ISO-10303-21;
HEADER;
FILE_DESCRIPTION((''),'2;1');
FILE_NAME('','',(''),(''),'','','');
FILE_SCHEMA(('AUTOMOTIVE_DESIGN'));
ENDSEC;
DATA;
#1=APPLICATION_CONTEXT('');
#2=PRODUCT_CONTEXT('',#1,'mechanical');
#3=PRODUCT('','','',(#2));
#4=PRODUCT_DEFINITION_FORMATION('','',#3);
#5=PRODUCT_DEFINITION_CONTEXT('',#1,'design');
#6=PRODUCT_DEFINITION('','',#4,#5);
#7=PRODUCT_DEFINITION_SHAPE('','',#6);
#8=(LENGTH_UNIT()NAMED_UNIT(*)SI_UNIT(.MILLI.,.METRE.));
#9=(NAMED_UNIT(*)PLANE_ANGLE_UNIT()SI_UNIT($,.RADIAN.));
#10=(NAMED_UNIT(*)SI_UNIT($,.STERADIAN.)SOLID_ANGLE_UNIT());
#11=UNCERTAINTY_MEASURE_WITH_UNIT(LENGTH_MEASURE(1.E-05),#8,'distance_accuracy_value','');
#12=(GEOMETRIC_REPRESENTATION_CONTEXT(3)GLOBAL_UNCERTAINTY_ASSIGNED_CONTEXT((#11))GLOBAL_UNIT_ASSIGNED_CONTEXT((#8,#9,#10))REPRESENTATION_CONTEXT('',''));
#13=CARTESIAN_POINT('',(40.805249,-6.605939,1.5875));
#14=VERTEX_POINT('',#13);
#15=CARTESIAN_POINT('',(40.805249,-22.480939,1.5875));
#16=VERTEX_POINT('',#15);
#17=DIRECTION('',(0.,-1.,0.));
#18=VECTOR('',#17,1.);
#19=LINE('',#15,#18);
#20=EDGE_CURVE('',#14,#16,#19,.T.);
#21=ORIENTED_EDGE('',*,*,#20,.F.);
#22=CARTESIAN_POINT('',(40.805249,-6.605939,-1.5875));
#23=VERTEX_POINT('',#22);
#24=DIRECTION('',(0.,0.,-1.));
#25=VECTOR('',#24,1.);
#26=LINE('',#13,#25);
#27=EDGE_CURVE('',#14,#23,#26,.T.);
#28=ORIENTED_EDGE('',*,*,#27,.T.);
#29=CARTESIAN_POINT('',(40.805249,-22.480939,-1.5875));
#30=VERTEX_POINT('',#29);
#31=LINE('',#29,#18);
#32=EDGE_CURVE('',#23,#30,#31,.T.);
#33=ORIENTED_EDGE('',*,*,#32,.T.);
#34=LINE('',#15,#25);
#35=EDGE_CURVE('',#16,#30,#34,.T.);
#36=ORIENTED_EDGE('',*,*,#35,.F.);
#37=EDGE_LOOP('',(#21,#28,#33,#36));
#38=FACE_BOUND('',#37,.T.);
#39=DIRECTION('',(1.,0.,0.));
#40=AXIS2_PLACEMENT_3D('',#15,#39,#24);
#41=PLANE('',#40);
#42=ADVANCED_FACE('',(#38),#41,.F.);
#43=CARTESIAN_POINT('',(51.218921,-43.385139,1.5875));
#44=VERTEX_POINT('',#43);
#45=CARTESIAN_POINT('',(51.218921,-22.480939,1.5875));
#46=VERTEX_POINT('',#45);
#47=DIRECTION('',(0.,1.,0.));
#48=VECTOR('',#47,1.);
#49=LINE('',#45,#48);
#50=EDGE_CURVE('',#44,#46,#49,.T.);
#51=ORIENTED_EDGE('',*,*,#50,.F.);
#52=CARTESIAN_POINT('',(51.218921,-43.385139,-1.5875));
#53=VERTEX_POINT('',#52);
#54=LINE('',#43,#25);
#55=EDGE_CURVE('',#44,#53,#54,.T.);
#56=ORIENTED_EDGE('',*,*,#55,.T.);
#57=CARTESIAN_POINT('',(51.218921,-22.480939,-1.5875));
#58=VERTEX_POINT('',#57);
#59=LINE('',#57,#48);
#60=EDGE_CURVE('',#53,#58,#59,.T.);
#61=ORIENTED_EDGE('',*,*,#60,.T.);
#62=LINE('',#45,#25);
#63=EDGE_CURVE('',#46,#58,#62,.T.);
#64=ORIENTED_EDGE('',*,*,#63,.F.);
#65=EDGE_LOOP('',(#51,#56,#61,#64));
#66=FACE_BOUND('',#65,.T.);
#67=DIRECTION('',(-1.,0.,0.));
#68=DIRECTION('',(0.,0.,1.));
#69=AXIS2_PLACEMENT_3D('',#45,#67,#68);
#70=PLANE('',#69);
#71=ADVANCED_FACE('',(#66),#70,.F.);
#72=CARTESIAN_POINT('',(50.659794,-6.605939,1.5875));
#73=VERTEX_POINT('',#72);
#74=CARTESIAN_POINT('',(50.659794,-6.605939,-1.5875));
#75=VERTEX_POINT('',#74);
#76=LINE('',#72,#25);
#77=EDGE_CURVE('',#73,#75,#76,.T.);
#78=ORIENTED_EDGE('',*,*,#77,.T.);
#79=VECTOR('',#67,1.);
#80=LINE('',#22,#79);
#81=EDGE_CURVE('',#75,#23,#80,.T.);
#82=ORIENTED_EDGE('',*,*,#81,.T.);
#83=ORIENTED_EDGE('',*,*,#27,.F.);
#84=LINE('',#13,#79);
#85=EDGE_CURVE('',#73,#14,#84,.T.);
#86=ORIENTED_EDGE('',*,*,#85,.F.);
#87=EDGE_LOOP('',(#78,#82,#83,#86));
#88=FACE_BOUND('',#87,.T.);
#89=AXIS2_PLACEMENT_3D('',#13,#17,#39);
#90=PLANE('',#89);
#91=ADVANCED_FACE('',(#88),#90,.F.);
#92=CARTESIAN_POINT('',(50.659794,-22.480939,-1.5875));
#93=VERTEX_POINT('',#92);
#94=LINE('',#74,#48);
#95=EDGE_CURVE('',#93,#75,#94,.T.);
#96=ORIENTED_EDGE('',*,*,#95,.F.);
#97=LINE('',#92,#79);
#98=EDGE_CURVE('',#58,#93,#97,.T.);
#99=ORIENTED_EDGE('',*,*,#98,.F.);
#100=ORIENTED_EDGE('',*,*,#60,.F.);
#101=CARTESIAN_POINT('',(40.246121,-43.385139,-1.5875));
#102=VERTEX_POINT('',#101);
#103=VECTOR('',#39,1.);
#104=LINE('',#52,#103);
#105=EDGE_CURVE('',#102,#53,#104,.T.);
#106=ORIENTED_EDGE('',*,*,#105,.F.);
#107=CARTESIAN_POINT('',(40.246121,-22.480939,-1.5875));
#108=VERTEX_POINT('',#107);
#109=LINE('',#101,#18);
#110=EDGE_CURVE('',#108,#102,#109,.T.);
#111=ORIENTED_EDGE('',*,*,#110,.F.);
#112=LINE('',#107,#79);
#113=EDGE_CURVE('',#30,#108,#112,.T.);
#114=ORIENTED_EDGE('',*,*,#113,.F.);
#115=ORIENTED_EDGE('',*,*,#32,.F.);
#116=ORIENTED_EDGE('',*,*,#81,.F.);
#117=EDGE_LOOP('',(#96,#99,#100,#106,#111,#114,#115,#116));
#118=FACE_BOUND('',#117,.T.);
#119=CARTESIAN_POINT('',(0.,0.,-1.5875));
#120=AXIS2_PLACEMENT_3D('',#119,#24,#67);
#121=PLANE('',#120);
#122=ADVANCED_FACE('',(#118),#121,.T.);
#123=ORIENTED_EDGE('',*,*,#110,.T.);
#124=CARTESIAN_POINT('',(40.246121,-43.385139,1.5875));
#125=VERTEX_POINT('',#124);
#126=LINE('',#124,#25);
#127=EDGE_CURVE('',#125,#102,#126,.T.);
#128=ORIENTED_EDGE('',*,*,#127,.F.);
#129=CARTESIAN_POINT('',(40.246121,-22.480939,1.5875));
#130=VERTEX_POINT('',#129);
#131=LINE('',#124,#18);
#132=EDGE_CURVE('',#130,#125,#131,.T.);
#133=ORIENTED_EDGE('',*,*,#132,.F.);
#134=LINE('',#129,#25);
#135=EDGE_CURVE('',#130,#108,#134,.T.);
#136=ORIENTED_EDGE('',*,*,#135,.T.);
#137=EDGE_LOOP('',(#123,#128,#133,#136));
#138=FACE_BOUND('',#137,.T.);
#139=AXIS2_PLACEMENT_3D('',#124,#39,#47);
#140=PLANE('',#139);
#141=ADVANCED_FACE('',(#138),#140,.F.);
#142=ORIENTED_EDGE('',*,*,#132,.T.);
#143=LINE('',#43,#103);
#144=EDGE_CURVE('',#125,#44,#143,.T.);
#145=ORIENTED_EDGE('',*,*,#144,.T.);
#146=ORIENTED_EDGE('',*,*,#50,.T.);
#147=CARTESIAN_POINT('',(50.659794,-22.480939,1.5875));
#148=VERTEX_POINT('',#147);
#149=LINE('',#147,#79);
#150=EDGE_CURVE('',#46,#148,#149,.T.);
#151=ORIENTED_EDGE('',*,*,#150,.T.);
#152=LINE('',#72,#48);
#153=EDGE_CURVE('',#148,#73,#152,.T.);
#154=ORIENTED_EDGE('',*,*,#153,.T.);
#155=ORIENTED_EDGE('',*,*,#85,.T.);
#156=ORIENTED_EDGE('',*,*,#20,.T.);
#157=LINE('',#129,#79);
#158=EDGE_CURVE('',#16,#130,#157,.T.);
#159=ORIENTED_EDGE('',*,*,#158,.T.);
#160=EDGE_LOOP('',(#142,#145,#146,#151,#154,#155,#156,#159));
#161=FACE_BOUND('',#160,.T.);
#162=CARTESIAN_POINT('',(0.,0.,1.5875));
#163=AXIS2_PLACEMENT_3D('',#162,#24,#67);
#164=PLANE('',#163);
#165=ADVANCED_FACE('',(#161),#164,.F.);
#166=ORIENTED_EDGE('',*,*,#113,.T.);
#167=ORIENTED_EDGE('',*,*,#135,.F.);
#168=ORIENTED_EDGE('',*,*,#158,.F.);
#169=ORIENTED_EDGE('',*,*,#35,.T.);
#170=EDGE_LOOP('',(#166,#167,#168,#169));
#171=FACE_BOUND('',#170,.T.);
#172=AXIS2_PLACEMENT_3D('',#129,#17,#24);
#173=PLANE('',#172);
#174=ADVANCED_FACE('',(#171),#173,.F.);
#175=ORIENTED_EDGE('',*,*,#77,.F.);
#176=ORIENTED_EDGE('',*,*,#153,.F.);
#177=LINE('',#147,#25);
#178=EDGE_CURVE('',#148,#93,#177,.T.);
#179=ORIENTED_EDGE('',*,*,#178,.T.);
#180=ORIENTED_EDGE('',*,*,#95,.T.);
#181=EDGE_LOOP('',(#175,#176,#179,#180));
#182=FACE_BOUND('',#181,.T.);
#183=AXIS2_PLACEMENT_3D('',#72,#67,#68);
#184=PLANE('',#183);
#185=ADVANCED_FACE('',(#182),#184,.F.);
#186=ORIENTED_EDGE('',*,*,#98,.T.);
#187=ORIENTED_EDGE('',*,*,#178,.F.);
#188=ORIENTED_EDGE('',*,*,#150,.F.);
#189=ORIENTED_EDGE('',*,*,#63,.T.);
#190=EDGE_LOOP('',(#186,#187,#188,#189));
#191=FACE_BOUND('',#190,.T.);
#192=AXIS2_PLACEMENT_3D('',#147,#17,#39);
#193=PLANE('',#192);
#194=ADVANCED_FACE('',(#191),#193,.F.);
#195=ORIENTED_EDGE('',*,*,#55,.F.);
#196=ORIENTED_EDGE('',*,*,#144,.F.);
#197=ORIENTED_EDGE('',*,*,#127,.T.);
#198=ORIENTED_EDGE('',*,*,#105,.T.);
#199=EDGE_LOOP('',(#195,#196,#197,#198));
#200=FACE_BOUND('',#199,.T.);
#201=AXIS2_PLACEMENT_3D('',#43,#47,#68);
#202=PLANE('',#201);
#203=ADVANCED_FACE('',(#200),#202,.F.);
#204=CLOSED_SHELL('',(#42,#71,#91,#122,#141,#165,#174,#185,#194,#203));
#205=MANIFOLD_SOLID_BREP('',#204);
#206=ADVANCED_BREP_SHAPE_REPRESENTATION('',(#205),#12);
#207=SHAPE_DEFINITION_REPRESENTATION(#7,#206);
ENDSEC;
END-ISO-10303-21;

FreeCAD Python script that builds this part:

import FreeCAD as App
import Part
import Sketcher
from FreeCAD import Vector
Q = App.Units.Quantity

doc = App.newDocument("Part")
body = doc.addObject("PartDesign::Body", "Body")

# Sketch on XY plane
sketch1 = body.newObject("Sketcher::SketchObject", "Sketch")
sketch1.AttachmentSupport = (doc.getObject("XY_Plane"), [""])
sketch1.MapMode = "FlatFace"
sketch1.addGeometry([
    Part.LineSegment(Vector(50.7, -6.6, 0), Vector(40.8, -6.6, 0)),  # 0
    Part.LineSegment(Vector(40.8, -6.6, 0), Vector(40.8, -22.5, 0)),  # 1
    Part.LineSegment(Vector(40.8, -22.5, 0), Vector(40.2, -22.5, 0)),  # 2
    Part.LineSegment(Vector(40.2, -22.5, 0), Vector(40.2, -43.4, 0)),  # 3
    Part.LineSegment(Vector(40.2, -43.4, 0), Vector(51.2, -43.4, 0)),  # 4
    Part.LineSegment(Vector(51.2, -43.4, 0), Vector(51.2, -22.5, 0)),  # 5
    Part.LineSegment(Vector(51.2, -22.5, 0), Vector(50.7, -22.5, 0)),  # 6
    Part.LineSegment(Vector(50.7, -22.5, 0), Vector(50.7, -6.6, 0)),  # 7
], False)
sketch1.addConstraint([
    Sketcher.Constraint("Coincident", 0, 2, 1, 1),
    Sketcher.Constraint("Coincident", 1, 2, 2, 1),
    Sketcher.Constraint("Coincident", 2, 2, 3, 1),
    Sketcher.Constraint("Coincident", 3, 2, 4, 1),
    Sketcher.Constraint("Coincident", 4, 2, 5, 1),
    Sketcher.Constraint("Coincident", 5, 2, 6, 1),
    Sketcher.Constraint("Coincident", 6, 2, 7, 1),
    Sketcher.Constraint("Coincident", 7, 2, 0, 1),
    Sketcher.Constraint("Horizontal", 0),
    Sketcher.Constraint("Vertical", 1),
    Sketcher.Constraint("Horizontal", 2),
    Sketcher.Constraint("Vertical", 3),
    Sketcher.Constraint("Horizontal", 4),
    Sketcher.Constraint("Vertical", 5),
    Sketcher.Constraint("Horizontal", 6),
    Sketcher.Constraint("Vertical", 7),
    Sketcher.Constraint("Horizontal", 2, 2, 5, 2),
    Sketcher.Constraint("Equal", 2, 6),
    Sketcher.Constraint("DistanceX", 4, 1, 4, 2, Q("0.432 in")),
    Sketcher.Constraint("DistanceY", 1, 2, 1, 1, Q("0.625 in")),
    Sketcher.Constraint("DistanceY", 3, 2, 3, 1, Q("0.823 in")),
    Sketcher.Constraint("DistanceX", 0, 2, 0, 1, Q("9.854545 mm")),
    Sketcher.Constraint("DistanceX", -1, 1, 0, 2, Q("40.805249 mm")),
    Sketcher.Constraint("DistanceY", 0, 2, -1, 1, Q("6.605939 mm")),
])
pad1 = body.newObject("PartDesign::Pad", "Pad")
pad1.Profile = sketch1
pad1.Length = Q("0.125 in")
pad1.Midplane = True

doc.recompute()
